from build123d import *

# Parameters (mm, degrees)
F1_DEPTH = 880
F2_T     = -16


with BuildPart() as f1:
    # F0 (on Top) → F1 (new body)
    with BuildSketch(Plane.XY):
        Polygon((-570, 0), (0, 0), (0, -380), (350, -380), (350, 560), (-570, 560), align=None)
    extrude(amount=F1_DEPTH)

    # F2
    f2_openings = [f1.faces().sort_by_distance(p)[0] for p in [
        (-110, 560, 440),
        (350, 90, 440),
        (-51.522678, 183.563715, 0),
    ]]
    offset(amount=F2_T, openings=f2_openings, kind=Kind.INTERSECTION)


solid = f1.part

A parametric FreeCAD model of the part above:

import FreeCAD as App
import Part
import Sketcher

V = App.Vector


def faces_at(feature, points):
    """Names of the faces that lie closest to the given points."""
    faces = feature.Shape.Faces
    near = lambda p: min(range(len(faces)), key=lambda i: faces[i].distToShape(Part.Vertex(*p))[0])
    return sorted({f"Face{near(p) + 1}" for p in points})

doc = App.newDocument("Part")
params = doc.addObject("Spreadsheet::Sheet", "Params")
for row, (alias, value) in enumerate([
    ("sketch1_width", "570 mm"),
    ("sketch1_width2", "350 mm"),
    ("sketch1_height", "380 mm"),
    ("sketch1_height2", "940 mm"),
    ("pad1_length", "880 mm"),
    ("thickness_wall", "16 mm"),
], start=1):
    params.set(f"A{row}", alias)
    params.set(f"B{row}", "=" + value)
    params.setAlias(f"B{row}", alias)

body = doc.addObject("PartDesign::Body", "Body")

# Sketch on XY plane
sketch1 = body.newObject("Sketcher::SketchObject", "Sketch")
sketch1.AttachmentSupport = (doc.getObject("XY_Plane"), [""])
sketch1.MapMode = "FlatFace"
sketch1.addGeometry([
    Part.LineSegment(V(-570, 0, 0), V(0, 0, 0)),  # 0
    Part.LineSegment(V(0, 0, 0), V(0, -380, 0)),  # 1
    Part.LineSegment(V(0, -380, 0), V(350, -380, 0)),  # 2
    Part.LineSegment(V(350, -380, 0), V(350, 560, 0)),  # 3
    Part.LineSegment(V(350, 560, 0), V(-570, 560, 0)),  # 4
    Part.LineSegment(V(-570, 560, 0), V(-570, 0, 0)),  # 5
], False)
sketch1.addConstraint([
    Sketcher.Constraint("Coincident", 0, 2, 1, 1),
    Sketcher.Constraint("Coincident", 1, 2, 2, 1),
    Sketcher.Constraint("Coincident", 2, 2, 3, 1),
    Sketcher.Constraint("Coincident", 3, 2, 4, 1),
    Sketcher.Constraint("Coincident", 4, 2, 5, 1),
    Sketcher.Constraint("Coincident", 5, 2, 0, 1),
    Sketcher.Constraint("Horizontal", 0),
    Sketcher.Constraint("Vertical", 1),
    Sketcher.Constraint("Horizontal", 2),
    Sketcher.Constraint("Vertical", 3),
    Sketcher.Constraint("Horizontal", 4),
    Sketcher.Constraint("Vertical", 5),
    Sketcher.Constraint("Coincident", 0, 2, -1, 1),
    Sketcher.Constraint("DistanceX", 0, 1, 0, 2, 570.0),
    Sketcher.Constraint("DistanceX", 2, 1, 2, 2, 350.0),
    Sketcher.Constraint("DistanceY", 1, 2, 1, 1, 380.0),
    Sketcher.Constraint("DistanceY", 3, 1, 3, 2, 940.0),
])
sketch1.setExpression("Constraints[13]", "Params.sketch1_width")
sketch1.setExpression("Constraints[14]", "Params.sketch1_width2")
sketch1.setExpression("Constraints[15]", "Params.sketch1_height")
sketch1.setExpression("Constraints[16]", "Params.sketch1_height2")
pad1 = body.newObject("PartDesign::Pad", "Pad")
pad1.Profile = sketch1
pad1.setExpression("Length", "Params.pad1_length")
doc.recompute()

thickness = body.newObject("PartDesign::Thickness", "Thickness")
thickness.Base = (pad1, faces_at(pad1, [(-110, 560, 440), (350, 90, 440), (-110, 90, 0)]))
thickness.setExpression("Value", "Params.thickness_wall")
thickness.Reversed = True
thickness.Join = "Intersection"

doc.recompute()
